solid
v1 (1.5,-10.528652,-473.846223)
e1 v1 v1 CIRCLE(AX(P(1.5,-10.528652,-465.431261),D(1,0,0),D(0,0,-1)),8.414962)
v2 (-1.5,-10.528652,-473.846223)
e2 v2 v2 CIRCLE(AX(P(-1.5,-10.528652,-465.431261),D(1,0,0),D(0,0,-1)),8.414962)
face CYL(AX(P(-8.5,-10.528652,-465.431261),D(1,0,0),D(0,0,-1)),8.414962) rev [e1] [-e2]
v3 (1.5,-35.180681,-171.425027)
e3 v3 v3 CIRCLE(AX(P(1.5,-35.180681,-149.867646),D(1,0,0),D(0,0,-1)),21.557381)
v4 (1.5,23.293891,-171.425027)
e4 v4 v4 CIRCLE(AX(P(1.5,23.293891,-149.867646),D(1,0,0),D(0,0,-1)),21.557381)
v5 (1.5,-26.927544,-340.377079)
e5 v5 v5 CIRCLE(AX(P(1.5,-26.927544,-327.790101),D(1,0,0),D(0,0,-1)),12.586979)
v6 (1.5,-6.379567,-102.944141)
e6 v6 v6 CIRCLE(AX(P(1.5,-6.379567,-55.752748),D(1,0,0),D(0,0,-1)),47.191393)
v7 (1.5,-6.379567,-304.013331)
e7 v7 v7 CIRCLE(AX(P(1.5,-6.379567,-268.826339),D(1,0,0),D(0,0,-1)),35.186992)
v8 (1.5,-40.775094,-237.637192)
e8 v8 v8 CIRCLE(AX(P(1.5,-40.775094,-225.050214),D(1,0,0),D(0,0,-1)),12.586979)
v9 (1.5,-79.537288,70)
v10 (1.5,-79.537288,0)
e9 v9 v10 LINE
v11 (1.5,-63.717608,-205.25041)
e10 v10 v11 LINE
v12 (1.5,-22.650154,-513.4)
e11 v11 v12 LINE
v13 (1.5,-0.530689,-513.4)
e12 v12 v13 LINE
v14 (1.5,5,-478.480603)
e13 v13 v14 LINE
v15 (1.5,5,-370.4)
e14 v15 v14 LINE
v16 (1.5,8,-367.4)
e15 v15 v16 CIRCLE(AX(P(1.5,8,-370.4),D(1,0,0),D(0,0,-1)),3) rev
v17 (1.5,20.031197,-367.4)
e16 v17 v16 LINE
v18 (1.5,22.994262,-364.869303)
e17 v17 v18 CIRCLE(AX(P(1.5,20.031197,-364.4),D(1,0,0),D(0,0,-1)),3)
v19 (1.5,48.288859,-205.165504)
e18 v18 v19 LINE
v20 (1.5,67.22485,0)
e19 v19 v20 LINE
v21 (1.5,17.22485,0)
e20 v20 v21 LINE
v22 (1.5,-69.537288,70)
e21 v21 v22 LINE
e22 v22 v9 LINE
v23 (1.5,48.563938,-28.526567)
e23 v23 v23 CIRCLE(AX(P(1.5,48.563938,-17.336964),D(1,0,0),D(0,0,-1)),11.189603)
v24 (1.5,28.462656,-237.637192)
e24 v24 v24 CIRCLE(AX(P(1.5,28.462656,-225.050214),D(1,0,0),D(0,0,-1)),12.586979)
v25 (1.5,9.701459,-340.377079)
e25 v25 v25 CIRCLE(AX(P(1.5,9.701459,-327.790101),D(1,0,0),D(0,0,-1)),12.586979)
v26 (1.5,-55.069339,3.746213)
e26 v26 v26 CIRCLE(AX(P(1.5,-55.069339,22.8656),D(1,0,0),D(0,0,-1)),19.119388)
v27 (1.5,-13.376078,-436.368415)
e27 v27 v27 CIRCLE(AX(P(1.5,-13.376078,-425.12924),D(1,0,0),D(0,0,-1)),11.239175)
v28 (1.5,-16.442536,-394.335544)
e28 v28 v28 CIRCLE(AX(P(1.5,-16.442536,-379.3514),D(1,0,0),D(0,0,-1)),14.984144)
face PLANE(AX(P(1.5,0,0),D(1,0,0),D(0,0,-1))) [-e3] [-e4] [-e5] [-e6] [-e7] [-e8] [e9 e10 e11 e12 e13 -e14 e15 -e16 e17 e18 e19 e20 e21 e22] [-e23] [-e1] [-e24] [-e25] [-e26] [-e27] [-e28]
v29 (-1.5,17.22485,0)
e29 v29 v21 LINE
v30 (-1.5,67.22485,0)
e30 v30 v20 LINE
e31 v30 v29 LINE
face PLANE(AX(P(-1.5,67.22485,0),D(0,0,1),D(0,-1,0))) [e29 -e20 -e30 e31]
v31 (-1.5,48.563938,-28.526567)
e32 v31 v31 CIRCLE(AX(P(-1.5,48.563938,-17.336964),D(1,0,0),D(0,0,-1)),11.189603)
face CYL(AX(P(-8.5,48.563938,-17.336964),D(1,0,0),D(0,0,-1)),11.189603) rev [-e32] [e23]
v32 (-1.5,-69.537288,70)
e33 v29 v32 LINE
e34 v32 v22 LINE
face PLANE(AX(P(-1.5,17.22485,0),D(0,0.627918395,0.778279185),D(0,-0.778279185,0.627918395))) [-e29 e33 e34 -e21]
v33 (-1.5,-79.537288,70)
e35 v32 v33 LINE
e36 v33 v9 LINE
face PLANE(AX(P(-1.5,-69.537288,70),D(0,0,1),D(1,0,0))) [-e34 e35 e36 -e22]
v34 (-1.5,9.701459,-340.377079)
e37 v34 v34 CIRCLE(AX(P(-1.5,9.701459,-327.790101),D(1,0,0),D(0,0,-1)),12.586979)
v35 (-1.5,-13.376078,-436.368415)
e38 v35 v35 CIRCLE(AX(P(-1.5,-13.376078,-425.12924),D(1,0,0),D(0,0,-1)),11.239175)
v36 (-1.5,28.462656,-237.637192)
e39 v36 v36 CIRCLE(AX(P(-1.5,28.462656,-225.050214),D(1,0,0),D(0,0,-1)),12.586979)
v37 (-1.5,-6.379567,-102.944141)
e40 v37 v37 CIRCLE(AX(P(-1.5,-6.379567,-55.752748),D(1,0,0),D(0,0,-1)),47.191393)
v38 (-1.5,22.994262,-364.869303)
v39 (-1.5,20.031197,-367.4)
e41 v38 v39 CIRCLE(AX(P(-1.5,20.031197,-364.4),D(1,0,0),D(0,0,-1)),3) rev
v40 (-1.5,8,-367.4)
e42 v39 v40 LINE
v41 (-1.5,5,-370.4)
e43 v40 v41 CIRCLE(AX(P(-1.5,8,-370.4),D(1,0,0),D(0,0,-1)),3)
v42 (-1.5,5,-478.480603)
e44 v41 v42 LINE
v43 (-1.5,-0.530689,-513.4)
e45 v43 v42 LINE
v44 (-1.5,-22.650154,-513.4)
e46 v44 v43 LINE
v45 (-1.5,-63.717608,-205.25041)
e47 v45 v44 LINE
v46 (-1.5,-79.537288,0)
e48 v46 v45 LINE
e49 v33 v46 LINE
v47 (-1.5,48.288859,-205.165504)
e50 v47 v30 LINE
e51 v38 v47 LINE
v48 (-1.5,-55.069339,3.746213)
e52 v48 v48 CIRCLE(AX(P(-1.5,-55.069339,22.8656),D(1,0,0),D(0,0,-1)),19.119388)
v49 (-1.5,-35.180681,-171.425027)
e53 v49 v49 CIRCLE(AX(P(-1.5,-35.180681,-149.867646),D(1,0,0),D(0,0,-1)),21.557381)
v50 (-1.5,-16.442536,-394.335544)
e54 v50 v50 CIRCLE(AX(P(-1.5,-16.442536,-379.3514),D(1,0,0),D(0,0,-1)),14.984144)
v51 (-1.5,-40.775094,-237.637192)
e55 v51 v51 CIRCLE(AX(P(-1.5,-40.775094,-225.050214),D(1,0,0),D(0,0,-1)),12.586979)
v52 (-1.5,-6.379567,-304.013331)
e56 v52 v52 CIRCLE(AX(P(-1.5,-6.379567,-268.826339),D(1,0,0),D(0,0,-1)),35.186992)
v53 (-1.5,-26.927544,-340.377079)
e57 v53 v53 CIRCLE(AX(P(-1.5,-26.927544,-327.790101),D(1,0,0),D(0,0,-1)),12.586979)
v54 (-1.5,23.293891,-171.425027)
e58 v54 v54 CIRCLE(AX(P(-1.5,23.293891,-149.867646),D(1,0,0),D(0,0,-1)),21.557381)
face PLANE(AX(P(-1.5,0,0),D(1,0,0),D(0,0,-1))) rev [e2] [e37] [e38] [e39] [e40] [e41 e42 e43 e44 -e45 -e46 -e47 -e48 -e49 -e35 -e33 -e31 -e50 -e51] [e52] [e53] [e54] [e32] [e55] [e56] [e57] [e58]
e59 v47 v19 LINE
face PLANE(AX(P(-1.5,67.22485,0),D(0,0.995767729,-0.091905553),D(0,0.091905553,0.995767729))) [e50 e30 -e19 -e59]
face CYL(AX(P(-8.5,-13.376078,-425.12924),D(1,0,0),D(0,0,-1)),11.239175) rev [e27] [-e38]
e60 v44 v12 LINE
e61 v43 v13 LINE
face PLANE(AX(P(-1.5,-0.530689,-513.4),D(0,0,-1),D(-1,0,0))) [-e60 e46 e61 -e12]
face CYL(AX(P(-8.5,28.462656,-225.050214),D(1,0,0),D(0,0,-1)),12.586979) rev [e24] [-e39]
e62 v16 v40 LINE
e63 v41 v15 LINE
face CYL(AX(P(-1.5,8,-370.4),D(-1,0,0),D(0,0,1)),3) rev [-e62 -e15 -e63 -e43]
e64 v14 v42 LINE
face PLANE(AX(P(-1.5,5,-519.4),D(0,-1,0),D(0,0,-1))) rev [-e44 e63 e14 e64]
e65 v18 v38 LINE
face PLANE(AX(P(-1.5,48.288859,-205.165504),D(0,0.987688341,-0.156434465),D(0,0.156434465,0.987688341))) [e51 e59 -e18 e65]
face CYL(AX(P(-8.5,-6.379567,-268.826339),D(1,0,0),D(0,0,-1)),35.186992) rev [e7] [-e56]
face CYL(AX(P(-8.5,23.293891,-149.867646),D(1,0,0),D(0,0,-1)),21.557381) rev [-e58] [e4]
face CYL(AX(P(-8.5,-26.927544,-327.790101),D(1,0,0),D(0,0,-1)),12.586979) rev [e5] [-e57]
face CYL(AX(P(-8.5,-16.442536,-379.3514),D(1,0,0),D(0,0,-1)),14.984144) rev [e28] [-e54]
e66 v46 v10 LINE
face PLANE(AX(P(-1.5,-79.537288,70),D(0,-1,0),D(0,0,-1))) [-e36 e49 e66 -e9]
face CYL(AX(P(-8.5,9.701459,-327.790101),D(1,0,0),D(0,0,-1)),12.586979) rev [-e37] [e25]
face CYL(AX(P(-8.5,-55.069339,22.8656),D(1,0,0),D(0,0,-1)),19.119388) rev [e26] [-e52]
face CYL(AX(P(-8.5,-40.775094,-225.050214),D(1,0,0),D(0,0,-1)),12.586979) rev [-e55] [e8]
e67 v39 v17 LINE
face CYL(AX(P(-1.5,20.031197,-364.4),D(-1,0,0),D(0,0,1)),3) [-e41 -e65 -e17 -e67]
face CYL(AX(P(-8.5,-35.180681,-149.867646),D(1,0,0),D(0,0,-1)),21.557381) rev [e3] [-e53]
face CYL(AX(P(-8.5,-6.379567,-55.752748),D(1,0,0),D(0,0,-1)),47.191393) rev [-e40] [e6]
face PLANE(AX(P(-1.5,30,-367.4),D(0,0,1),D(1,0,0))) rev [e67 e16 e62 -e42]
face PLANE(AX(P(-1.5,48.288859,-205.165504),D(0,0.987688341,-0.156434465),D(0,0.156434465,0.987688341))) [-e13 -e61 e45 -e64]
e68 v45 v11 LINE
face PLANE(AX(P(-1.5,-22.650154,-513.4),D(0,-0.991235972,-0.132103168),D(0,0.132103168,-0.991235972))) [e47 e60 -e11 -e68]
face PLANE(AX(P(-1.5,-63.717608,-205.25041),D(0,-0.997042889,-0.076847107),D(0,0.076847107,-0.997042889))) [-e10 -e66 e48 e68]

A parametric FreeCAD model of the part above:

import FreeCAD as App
import Part
import Sketcher
Q = App.Units.Quantity


def edges_at(feature, points):
    """Names of the edges that pass closest to the given points."""
    edges = feature.Shape.Edges
    near = lambda p: min(range(len(edges)), key=lambda i: edges[i].distToShape(Part.Vertex(*p))[0])
    return sorted({f"Edge{near(p) + 1}" for p in points})

doc = App.newDocument("Part")
body = doc.addObject("PartDesign::Body", "Body")

# Sketch on YZ plane
sketch1 = body.newObject("Sketcher::SketchObject", "Sketch")
sketch1.AttachmentSupport = (doc.getObject("YZ_Plane"), [""])
sketch1.MapMode = "FlatFace"
sketch1.addGeometry([
    Part.LineSegment(App.Vector(48, -205, 0), App.Vector(67, 0, 0)),  # 0
    Part.LineSegment(App.Vector(67, 0, 0), App.Vector(17, 0, 0)),  # 1
    Part.LineSegment(App.Vector(17, 0, 0), App.Vector(-70, 70, 0)),  # 2
    Part.LineSegment(App.Vector(-70, 70, 0), App.Vector(-80, 70, 0)),  # 3
    Part.LineSegment(App.Vector(-80, 70, 0), App.Vector(-80, 0, 0)),  # 4
    Part.LineSegment(App.Vector(-80, 0, 0), App.Vector(-64, -205, 0)),  # 5
    Part.LineSegment(App.Vector(-64, -205, 0), App.Vector(-23, -513, 0)),  # 6
    Part.LineSegment(App.Vector(-23, -513, 0), App.Vector(-1, -513, 0)),  # 7
    Part.LineSegment(App.Vector(-1, -513, 0), App.Vector(48, -205, 0)),  # 8
], False)
sketch1.addConstraint([
    Sketcher.Constraint("Coincident", 0, 2, 1, 1),
    Sketcher.Constraint("Coincident", 1, 2, 2, 1),
    Sketcher.Constraint("Coincident", 2, 2, 3, 1),
    Sketcher.Constraint("Coincident", 3, 2, 4, 1),
    Sketcher.Constraint("Coincident", 4, 2, 5, 1),
    Sketcher.Constraint("Coincident", 5, 2, 6, 1),
    Sketcher.Constraint("Coincident", 6, 2, 7, 1),
    Sketcher.Constraint("Coincident", 7, 2, 8, 1),
    Sketcher.Constraint("Coincident", 8, 2, 0, 1),
    Sketcher.Constraint("Horizontal", 1),
    Sketcher.Constraint("Horizontal", 3),
    Sketcher.Constraint("Vertical", 4),
    Sketcher.Constraint("Horizontal", 7),
    Sketcher.Constraint("PointOnObject", 0, 2, -1),
    Sketcher.Constraint("PointOnObject", 4, 2, -1),
    Sketcher.Constraint("DistanceX", 1, 2, 1, 1, Q("50 mm")),
    Sketcher.Constraint("DistanceX", 3, 2, 3, 1, Q("10 mm")),
    Sketcher.Constraint("DistanceY", 4, 2, 4, 1, Q("70 mm")),
    Sketcher.Constraint("Angle", 8, Q("81 deg")),
    Sketcher.Constraint("DistanceY", 6, 2, -1, 1, Q("513.4 mm")),
    Sketcher.Constraint("Distance", 6, Q("310.874099 mm")),
    Sketcher.Constraint("DistanceX", 4, 2, 7, 2, Q("79.006599 mm")),
    Sketcher.Constraint("Distance", 0, Q("206.03751 mm")),
    Sketcher.Constraint("Distance", 5, Q("205.859158 mm")),
    Sketcher.Constraint("DistanceX", 7, 1, 7, 2, Q("22.119465 mm")),
    Sketcher.Constraint("DistanceX", -1, 1, 0, 2, Q("67.22485 mm")),
    Sketcher.Constraint("DistanceX", 2, 2, -1, 1, Q("69.537288 mm")),
])
pad1 = body.newObject("PartDesign::Pad", "Pad")
pad1.Profile = sketch1
pad1.Type = "TwoLengths"
pad1.Length = 1.5
pad1.Length2 = 1.5

# Sketch on YZ plane
sketch2 = body.newObject("Sketcher::SketchObject", "Sketch001")
sketch2.AttachmentSupport = (doc.getObject("YZ_Plane"), [""])
sketch2.MapMode = "FlatFace"
sketch2.AttachmentOffset = App.Placement(App.Vector(0, 0, 1.5), App.Rotation())
sketch2.addGeometry([
    Part.LineSegment(App.Vector(30, -367, 0), App.Vector(5, -367, 0)),
    Part.LineSegment(App.Vector(5, -367, 0), App.Vector(5, -519, 0)),
    Part.LineSegment(App.Vector(5, -519, 0), App.Vector(30, -519, 0)),
    Part.LineSegment(App.Vector(30, -519, 0), App.Vector(30, -367, 0)),
], False)
sketch2.addConstraint([
    Sketcher.Constraint("Coincident", 0, 2, 1, 1),
    Sketcher.Constraint("Coincident", 1, 2, 2, 1),
    Sketcher.Constraint("Coincident", 2, 2, 3, 1),
    Sketcher.Constraint("Coincident", 3, 2, 0, 1),
    Sketcher.Constraint("Horizontal", 0),
    Sketcher.Constraint("Vertical", 1),
    Sketcher.Constraint("Horizontal", 2),
    Sketcher.Constraint("Vertical", 3),
    Sketcher.Constraint("DistanceX", 0, 2, 0, 1, Q("25 mm")),
    Sketcher.Constraint("DistanceY", 1, 2, 1, 1, Q("152 mm")),
    Sketcher.Constraint("DistanceX", -1, 1, 0, 2, Q("5 mm")),
    Sketcher.Constraint("DistanceY", 0, 2, -1, 1, Q("367.4 mm")),
])
pocket1 = body.newObject("PartDesign::Pocket", "Pocket")
pocket1.Profile = sketch2
pocket1.Type = "ThroughAll"

# Sketch on YZ plane
sketch3 = body.newObject("Sketcher::SketchObject", "Sketch002")
sketch3.AttachmentSupport = (doc.getObject("YZ_Plane"), [""])
sketch3.MapMode = "FlatFace"
sketch3.AttachmentOffset = App.Placement(App.Vector(0, 0, 1.5), App.Rotation())
sketch3.addGeometry([
    Part.Circle(App.Vector(-55, 23, 0), App.Vector(0, 0, 1), 19),  # 0
    Part.Circle(App.Vector(-6, -56, 0), App.Vector(0, 0, 1), 47),  # 1
    Part.Circle(App.Vector(-6, -269, 0), App.Vector(0, 0, 1), 35),  # 2
    Part.Circle(App.Vector(28, -225, 0), App.Vector(0, 0, 1), 13),  # 3
    Part.Circle(App.Vector(49, -17, 0), App.Vector(0, 0, 1), 11),  # 4
    Part.Circle(App.Vector(-41, -225, 0), App.Vector(0, 0, 1), 13),  # 5
    Part.Circle(App.Vector(-27, -328, 0), App.Vector(0, 0, 1), 13),  # 6
    Part.Circle(App.Vector(10, -328, 0), App.Vector(0, 0, 1), 13),  # 7
    Part.Circle(App.Vector(23, -150, 0), App.Vector(0, 0, 1), 22),  # 8
    Part.Circle(App.Vector(-35, -150, 0), App.Vector(0, 0, 1), 22),  # 9
    Part.Circle(App.Vector(-16, -379, 0), App.Vector(0, 0, 1), 15),  # 10
    Part.Circle(App.Vector(-13, -425, 0), App.Vector(0, 0, 1), 11),  # 11
    Part.Circle(App.Vector(-11, -465, 0), App.Vector(0, 0, 1), 8),  # 12
], False)
sketch3.addConstraint([
    Sketcher.Constraint("Equal", 3, 5),
    Sketcher.Constraint("Equal", 5, 6),
    Sketcher.Constraint("Equal", 6, 7),
    Sketcher.Constraint("Equal", 8, 9),
    Sketcher.Constraint("Horizontal", 3, 3, 5, 3),
    Sketcher.Constraint("Horizontal", 6, 3, 7, 3),
    Sketcher.Constraint("Horizontal", 8, 3, 9, 3),
    Sketcher.Constraint("Vertical", 1, 3, 2, 3),
    Sketcher.Constraint("Diameter", 8, Q("43.114761 mm")),
    Sketcher.Constraint("Diameter", 11, Q("22.47835 mm")),
    Sketcher.Constraint("Diameter", 0, Q("38.238776 mm")),
    Sketcher.Constraint("Diameter", 1, Q("94.382787 mm")),
    Sketcher.Constraint("Diameter", 2, Q("70.373984 mm")),
    Sketcher.Constraint("Diameter", 3, Q("25.173957 mm")),
    Sketcher.Constraint("Diameter", 4, Q("22.379207 mm")),
    Sketcher.Constraint("Diameter", 10, Q("29.968287 mm")),
    Sketcher.Constraint("Diameter", 12, Q("16.829925 mm")),
    Sketcher.Constraint("DistanceY", -1, 1, 0, 3, Q("22.8656 mm")),
    Sketcher.Constraint("DistanceY", 6, 3, -1, 1, Q("327.790101 mm")),
    Sketcher.Constraint("DistanceY", 10, 3, -1, 1, Q("379.3514 mm")),
    Sketcher.Constraint("DistanceX", 6, 3, 3, 3, Q("55.3902 mm")),
    Sketcher.Constraint("DistanceY", 8, 3, 1, 3, Q("94.114899 mm")),
    Sketcher.Constraint("DistanceY", 11, 3, 2, 3, Q("156.3029 mm")),
    Sketcher.Constraint("DistanceX", 0, 3, -1, 1, Q("55.069339 mm")),
    Sketcher.Constraint("DistanceY", 2, 3, -1, 1, Q("268.826339 mm")),
    Sketcher.Constraint("DistanceX", -1, 1, 4, 3, Q("48.563938 mm")),
    Sketcher.Constraint("DistanceX", -1, 1, 7, 3, Q("9.701459 mm")),
    Sketcher.Constraint("DistanceX", -1, 1, 8, 3, Q("23.293891 mm")),
    Sketcher.Constraint("DistanceX", 9, 3, -1, 1, Q("35.180681 mm")),
    Sketcher.Constraint("DistanceY", 12, 3, -1, 1, Q("465.431261 mm")),
    Sketcher.Constraint("DistanceY", 1, 3, 0, 3, Q("78.618348 mm")),
    Sketcher.Constraint("DistanceY", 3, 3, 4, 3, Q("207.71325 mm")),
    Sketcher.Constraint("DistanceX", 5, 3, 3, 3, Q("69.23775 mm")),
    Sketcher.Constraint("DistanceX", 6, 3, 10, 3, Q("10.485008 mm")),
    Sketcher.Constraint("DistanceX", 10, 3, 2, 3, Q("10.062969 mm")),
    Sketcher.Constraint("DistanceX", 10, 3, 11, 3, Q("3.066458 mm")),
    Sketcher.Constraint("DistanceX", 6, 3, 12, 3, Q("16.398892 mm")),
    Sketcher.Constraint("DistanceX", 12, 3, 7, 3, Q("20.230111 mm")),
    Sketcher.Constraint("DistanceY", 3, 3, -1, 1, Q("225.050214 mm")),
])
pocket2 = body.newObject("PartDesign::Pocket", "Pocket001")
pocket2.Profile = sketch3
pocket2.Length = 10
doc.recompute()

fillet = body.newObject("PartDesign::Fillet", "Fillet")
fillet.Base = (pocket2, edges_at(pocket2, [(0, 22.593, -367.4), (0, 5, -367.4)]))
fillet.Radius = 3

doc.recompute()
